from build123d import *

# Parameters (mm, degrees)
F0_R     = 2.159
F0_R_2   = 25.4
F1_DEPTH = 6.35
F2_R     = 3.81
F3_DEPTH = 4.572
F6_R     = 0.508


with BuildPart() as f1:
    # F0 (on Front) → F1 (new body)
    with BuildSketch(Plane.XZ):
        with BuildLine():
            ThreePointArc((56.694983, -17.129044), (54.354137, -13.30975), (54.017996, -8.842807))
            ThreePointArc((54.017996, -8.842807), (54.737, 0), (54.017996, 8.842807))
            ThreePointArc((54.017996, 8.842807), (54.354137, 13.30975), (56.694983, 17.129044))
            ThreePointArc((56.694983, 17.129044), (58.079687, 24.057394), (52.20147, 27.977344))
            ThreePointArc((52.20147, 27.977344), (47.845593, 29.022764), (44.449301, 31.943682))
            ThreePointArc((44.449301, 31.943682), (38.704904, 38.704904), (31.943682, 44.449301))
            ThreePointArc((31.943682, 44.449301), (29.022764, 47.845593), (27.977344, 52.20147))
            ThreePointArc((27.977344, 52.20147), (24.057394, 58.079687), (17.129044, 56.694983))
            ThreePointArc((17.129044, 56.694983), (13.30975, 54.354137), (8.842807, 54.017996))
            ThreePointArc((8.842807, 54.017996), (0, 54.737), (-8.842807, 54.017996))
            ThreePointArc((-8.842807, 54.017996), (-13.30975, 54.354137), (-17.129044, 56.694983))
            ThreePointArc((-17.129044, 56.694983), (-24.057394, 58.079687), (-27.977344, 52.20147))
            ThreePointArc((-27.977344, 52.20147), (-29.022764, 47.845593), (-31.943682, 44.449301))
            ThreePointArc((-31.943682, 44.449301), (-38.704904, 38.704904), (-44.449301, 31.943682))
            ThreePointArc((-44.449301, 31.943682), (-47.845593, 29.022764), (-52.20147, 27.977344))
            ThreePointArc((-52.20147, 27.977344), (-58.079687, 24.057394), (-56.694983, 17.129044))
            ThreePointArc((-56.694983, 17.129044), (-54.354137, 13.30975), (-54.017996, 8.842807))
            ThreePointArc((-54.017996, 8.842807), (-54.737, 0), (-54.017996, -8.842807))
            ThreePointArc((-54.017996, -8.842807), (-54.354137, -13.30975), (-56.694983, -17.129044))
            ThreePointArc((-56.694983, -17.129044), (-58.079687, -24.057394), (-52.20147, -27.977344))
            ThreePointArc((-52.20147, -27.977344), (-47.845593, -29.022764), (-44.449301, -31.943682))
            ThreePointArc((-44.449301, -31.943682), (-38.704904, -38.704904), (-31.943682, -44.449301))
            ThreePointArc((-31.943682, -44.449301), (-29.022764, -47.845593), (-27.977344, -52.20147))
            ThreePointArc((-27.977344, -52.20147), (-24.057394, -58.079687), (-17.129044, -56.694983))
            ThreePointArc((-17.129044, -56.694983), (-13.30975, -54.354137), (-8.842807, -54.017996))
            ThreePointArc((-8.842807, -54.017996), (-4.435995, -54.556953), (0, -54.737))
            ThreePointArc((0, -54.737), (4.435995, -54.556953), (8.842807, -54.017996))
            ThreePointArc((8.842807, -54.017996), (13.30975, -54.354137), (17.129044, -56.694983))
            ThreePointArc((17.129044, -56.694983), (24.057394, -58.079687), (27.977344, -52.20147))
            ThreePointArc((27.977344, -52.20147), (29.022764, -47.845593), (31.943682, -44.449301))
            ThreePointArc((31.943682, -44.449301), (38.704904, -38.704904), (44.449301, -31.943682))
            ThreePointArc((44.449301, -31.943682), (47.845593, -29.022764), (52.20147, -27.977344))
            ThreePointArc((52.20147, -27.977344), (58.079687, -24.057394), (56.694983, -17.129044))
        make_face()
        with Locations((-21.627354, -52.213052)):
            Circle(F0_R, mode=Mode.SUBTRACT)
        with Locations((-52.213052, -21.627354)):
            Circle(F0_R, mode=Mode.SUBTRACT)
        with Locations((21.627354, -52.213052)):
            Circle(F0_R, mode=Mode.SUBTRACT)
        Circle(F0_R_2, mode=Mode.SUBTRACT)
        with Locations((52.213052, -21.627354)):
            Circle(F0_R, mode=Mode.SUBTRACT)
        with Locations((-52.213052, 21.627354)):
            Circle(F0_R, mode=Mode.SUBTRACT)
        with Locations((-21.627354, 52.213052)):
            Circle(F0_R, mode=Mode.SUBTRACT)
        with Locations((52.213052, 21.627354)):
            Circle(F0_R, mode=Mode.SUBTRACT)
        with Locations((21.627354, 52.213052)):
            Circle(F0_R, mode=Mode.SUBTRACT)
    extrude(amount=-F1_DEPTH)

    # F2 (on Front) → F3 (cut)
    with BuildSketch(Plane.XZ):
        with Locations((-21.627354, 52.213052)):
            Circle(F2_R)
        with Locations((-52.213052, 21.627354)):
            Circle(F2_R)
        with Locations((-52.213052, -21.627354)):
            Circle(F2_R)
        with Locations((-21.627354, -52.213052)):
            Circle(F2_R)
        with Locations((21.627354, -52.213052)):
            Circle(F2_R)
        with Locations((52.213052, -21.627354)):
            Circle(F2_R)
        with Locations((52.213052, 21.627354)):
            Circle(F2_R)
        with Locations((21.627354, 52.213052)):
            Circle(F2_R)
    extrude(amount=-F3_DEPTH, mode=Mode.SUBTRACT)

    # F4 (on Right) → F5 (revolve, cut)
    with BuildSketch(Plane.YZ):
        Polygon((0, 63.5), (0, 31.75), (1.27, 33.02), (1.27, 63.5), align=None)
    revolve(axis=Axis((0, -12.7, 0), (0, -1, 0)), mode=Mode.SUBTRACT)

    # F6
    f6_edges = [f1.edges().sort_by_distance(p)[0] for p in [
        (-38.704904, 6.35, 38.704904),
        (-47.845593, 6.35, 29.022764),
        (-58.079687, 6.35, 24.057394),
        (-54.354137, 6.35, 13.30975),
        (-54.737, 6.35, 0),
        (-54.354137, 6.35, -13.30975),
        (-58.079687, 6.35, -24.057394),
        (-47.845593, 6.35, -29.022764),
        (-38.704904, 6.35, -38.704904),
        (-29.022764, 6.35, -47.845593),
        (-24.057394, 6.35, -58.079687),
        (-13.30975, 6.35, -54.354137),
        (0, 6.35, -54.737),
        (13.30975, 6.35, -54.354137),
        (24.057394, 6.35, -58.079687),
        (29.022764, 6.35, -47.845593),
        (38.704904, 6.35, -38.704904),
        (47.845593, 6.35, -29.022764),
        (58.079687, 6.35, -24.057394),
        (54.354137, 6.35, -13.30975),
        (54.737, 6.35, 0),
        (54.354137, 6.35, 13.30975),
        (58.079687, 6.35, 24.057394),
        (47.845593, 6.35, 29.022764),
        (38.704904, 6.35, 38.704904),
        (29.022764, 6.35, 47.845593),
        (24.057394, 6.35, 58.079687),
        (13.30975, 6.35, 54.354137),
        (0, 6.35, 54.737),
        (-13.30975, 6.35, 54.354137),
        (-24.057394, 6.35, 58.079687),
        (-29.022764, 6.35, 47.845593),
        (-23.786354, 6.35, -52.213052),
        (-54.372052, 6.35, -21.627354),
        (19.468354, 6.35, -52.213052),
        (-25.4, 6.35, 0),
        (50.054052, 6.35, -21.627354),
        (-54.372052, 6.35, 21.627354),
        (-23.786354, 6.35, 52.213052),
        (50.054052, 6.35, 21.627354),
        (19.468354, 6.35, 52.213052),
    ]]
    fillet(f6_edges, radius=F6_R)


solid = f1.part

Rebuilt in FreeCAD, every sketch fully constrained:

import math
import FreeCAD as App
import Part
import Sketcher

V = App.Vector
Q = App.Units.Quantity


def edges_at(feature, points):
    """Names of the edges that pass closest to the given points."""
    edges = feature.Shape.Edges
    near = lambda p: min(range(len(edges)), key=lambda i: edges[i].distToShape(Part.Vertex(*p))[0])
    return sorted({f"Edge{near(p) + 1}" for p in points})


def add_polygon(sketch, points):
    """Adds a closed chain of lines whose ends are joined by coincident constraints."""
    first, n = sketch.GeometryCount, len(points)
    for a, b in zip(points, points[1:] + points[:1]):
        sketch.addGeometry(Part.LineSegment(App.Vector(*a, 0), App.Vector(*b, 0)), False)
    for i in range(n):
        sketch.addConstraint(Sketcher.Constraint("Coincident", first + i, 2, first + (i + 1) % n, 1))

doc = App.newDocument("Part")
params = doc.addObject("Spreadsheet::Sheet", "Params")
for row, (alias, value) in enumerate([
    ("sketch1_diameter", "2 in"),
    ("sketch1_diameter2", "0.17 in"),
    ("sketch1_diameter3", "0.17 in"),
    ("sketch1_diameter4", "0.17 in"),
    ("sketch1_diameter5", "0.17 in"),
    ("pad1_length", "0.25 in"),
    ("sketch2_diameter", "0.3 in"),
    ("pocket1_length", "0.18 in"),
    ("sketch3_height", "1.2 in"),
    ("sketch3_width", "0.05 in"),
    ("groove_angle", "360 deg"),
    ("fillet_radius", "0.02 in"),
], start=1):
    params.set(f"A{row}", alias)
    params.set(f"B{row}", "=" + value)
    params.setAlias(f"B{row}", alias)

body = doc.addObject("PartDesign::Body", "Body")

# Sketch on XZ plane
sketch1 = doc.addObject("Sketcher::SketchObject", "Sketch")
body.addObject(sketch1)
sketch1.AttachmentSupport = (doc.XZ_Plane, [""])
sketch1.MapMode = "FlatFace"
sketch1.addGeometry([
    Part.ArcOfCircle(Part.Circle(V(63.417885, -10.381577, 0), V(0, 0, 1), 9.525005), math.radians(170.703092), math.radians(225.104488)),  # 0
    Part.ArcOfCircle(Part.Circle(V(0.000029, 0, 0), V(0, 0, 1), 54.736971), math.radians(-9.296928), math.radians(9.296928)),  # 1
    Part.ArcOfCircle(Part.Circle(V(63.417885, 10.381577, 0), V(0, 0, 1), 9.525005), math.radians(134.895512), math.radians(189.296908)),  # 2
    Part.ArcOfCircle(Part.Circle(V(52.213052, 21.627354, 0), V(0, 0, 1), 6.35), math.radians(-45.1045), math.radians(90.1045)),  # 3
    Part.ArcOfCircle(Part.Circle(V(52.184096, 37.502326, 0), V(0, 0, 1), 9.524998), math.radians(-144.296924), math.radians(-89.895493)),  # 4
    Part.ArcOfCircle(Part.Circle(V(0.000004, 0.000004, 0), V(0, 0, 1), 54.736994), math.radians(35.703075), math.radians(54.296925)),  # 5
    Part.ArcOfCircle(Part.Circle(V(37.502326, 52.184096, 0), V(0, 0, 1), 9.524998), math.radians(179.895493), math.radians(234.296924)),  # 6
    Part.ArcOfCircle(Part.Circle(V(21.627354, 52.213052, 0), V(0, 0, 1), 6.35), math.radians(-0.1045), math.radians(135.1045)),  # 7
    Part.ArcOfCircle(Part.Circle(V(10.381577, 63.417885, 0), V(0, 0, 1), 9.525005), math.radians(-99.296908), math.radians(-44.895512)),  # 8
    Part.ArcOfCircle(Part.Circle(V(0, 0.000029, 0), V(0, 0, 1), 54.736971), math.radians(80.703072), math.radians(99.296928)),  # 9
    Part.ArcOfCircle(Part.Circle(V(-10.381577, 63.417885, 0), V(0, 0, 1), 9.525005), math.radians(-135.104488), math.radians(-80.703092)),  # 10
    Part.ArcOfCircle(Part.Circle(V(-21.627354, 52.213052, 0), V(0, 0, 1), 6.35), math.radians(44.8955), math.radians(180.1045)),  # 11
    Part.ArcOfCircle(Part.Circle(V(-37.502326, 52.184096, 0), V(0, 0, 1), 9.524998), math.radians(-54.296924), math.radians(0.104507)),  # 12
    Part.ArcOfCircle(Part.Circle(V(-0.000004, 0.000004, 0), V(0, 0, 1), 54.736994), math.radians(125.703075), math.radians(144.296925)),  # 13
    Part.ArcOfCircle(Part.Circle(V(-52.184096, 37.502326, 0), V(0, 0, 1), 9.524998), math.radians(-90.104507), math.radians(-35.703076)),  # 14
    Part.ArcOfCircle(Part.Circle(V(-52.213052, 21.627354, 0), V(0, 0, 1), 6.35), math.radians(89.8955), math.radians(225.1045)),  # 15
    Part.ArcOfCircle(Part.Circle(V(-63.417885, 10.381577, 0), V(0, 0, 1), 9.525005), math.radians(-9.296908), math.radians(45.104488)),  # 16
    Part.ArcOfCircle(Part.Circle(V(-0.000029, 0, 0), V(0, 0, 1), 54.736971), math.radians(170.703072), math.radians(189.296928)),  # 17
    Part.ArcOfCircle(Part.Circle(V(-63.417885, -10.381577, 0), V(0, 0, 1), 9.525005), math.radians(-45.104488), math.radians(9.296908)),  # 18
    Part.ArcOfCircle(Part.Circle(V(-52.213052, -21.627354, 0), V(0, 0, 1), 6.35), math.radians(134.8955), math.radians(270.1045)),  # 19
    Part.ArcOfCircle(Part.Circle(V(-52.184096, -37.502326, 0), V(0, 0, 1), 9.524998), math.radians(35.703076), math.radians(90.104507)),  # 20
    Part.ArcOfCircle(Part.Circle(V(-0.000004, -0.000004, 0), V(0, 0, 1), 54.736994), math.radians(-144.296925), math.radians(-125.703075)),  # 21
    Part.ArcOfCircle(Part.Circle(V(-37.502326, -52.184096, 0), V(0, 0, 1), 9.524998), math.radians(-0.104507), math.radians(54.296924)),  # 22
    Part.ArcOfCircle(Part.Circle(V(-21.627354, -52.213052, 0), V(0, 0, 1), 6.35), math.radians(179.8955), math.radians(315.1045)),  # 23
    Part.ArcOfCircle(Part.Circle(V(-10.381577, -63.417885, 0), V(0, 0, 1), 9.525005), math.radians(80.703092), math.radians(135.104488)),  # 24
    Part.ArcOfCircle(Part.Circle(V(-0.000003, -0.000067, 0), V(0, 0, 1), 54.736933), math.radians(-99.296931), math.radians(-89.999997)),  # 25
    Part.ArcOfCircle(Part.Circle(V(0.000003, -0.000067, 0), V(0, 0, 1), 54.736933), math.radians(-90.000003), math.radians(-80.703069)),  # 26
    Part.ArcOfCircle(Part.Circle(V(10.381577, -63.417885, 0), V(0, 0, 1), 9.525005), math.radians(44.895512), math.radians(99.296908)),  # 27
    Part.ArcOfCircle(Part.Circle(V(21.627354, -52.213052, 0), V(0, 0, 1), 6.35), math.radians(-135.1045), math.radians(0.1045)),  # 28
    Part.ArcOfCircle(Part.Circle(V(37.502326, -52.184096, 0), V(0, 0, 1), 9.524998), math.radians(125.703076), math.radians(180.104507)),  # 29
    Part.ArcOfCircle(Part.Circle(V(0.000004, -0.000004, 0), V(0, 0, 1), 54.736994), math.radians(-54.296925), math.radians(-35.703075)),  # 30
    Part.ArcOfCircle(Part.Circle(V(52.184096, -37.502326, 0), V(0, 0, 1), 9.524998), math.radians(89.895493), math.radians(144.296924)),  # 31
    Part.ArcOfCircle(Part.Circle(V(52.213052, -21.627354, 0), V(0, 0, 1), 6.35), math.radians(-90.1045), math.radians(45.1045)),  # 32
    Part.Circle(V(-21.627354, -52.213052, 0), V(0, 0, 1), 2.159),  # 33
    Part.Circle(V(-52.213052, -21.627354, 0), V(0, 0, 1), 2.159),  # 34
    Part.Circle(V(21.627354, -52.213052, 0), V(0, 0, 1), 2.159),  # 35
    Part.Circle(V(52.213052, -21.627354, 0), V(0, 0, 1), 2.159),  # 36
    Part.Circle(V(-52.213052, 21.627354, 0), V(0, 0, 1), 2.159),  # 37
    Part.Circle(V(-21.627354, 52.213052, 0), V(0, 0, 1), 2.159),  # 38
    Part.Circle(V(0, 0, 0), V(0, 0, 1), 25.4),  # 39
    Part.Circle(V(52.213052, 21.627354, 0), V(0, 0, 1), 2.159),  # 40
    Part.Circle(V(21.627354, 52.213052, 0), V(0, 0, 1), 2.159),  # 41
], False)
sketch1.addConstraint([
    Sketcher.Constraint("Coincident", 0, 1, 1, 1),
    Sketcher.Constraint("Coincident", 1, 2, 2, 2),
    Sketcher.Constraint("Coincident", 2, 1, 3, 1),
    Sketcher.Constraint("Coincident", 3, 2, 4, 2),
    Sketcher.Constraint("Coincident", 4, 1, 5, 1),
    Sketcher.Constraint("Coincident", 5, 2, 6, 2),
    Sketcher.Constraint("Coincident", 6, 1, 7, 1),
    Sketcher.Constraint("Coincident", 7, 2, 8, 2),
    Sketcher.Constraint("Coincident", 8, 1, 9, 1),
    Sketcher.Constraint("Coincident", 9, 2, 10, 2),
    Sketcher.Constraint("Coincident", 10, 1, 11, 1),
    Sketcher.Constraint("Coincident", 11, 2, 12, 2),
    Sketcher.Constraint("Coincident", 12, 1, 13, 1),
    Sketcher.Constraint("Coincident", 13, 2, 14, 2),
    Sketcher.Constraint("Coincident", 14, 1, 15, 1),
    Sketcher.Constraint("Coincident", 15, 2, 16, 2),
    Sketcher.Constraint("Coincident", 16, 1, 17, 1),
    Sketcher.Constraint("Coincident", 17, 2, 18, 2),
    Sketcher.Constraint("Coincident", 18, 1, 19, 1),
    Sketcher.Constraint("Coincident", 19, 2, 20, 2),
    Sketcher.Constraint("Coincident", 20, 1, 21, 1),
    Sketcher.Constraint("Coincident", 21, 2, 22, 2),
    Sketcher.Constraint("Coincident", 22, 1, 23, 1),
    Sketcher.Constraint("Coincident", 23, 2, 24, 2),
    Sketcher.Constraint("Coincident", 24, 1, 25, 1),
    Sketcher.Constraint("Coincident", 25, 2, 26, 1),
    Sketcher.Constraint("Coincident", 26, 2, 27, 2),
    Sketcher.Constraint("Coincident", 27, 1, 28, 1),
    Sketcher.Constraint("Coincident", 28, 2, 29, 2),
    Sketcher.Constraint("Coincident", 29, 1, 30, 1),
    Sketcher.Constraint("Coincident", 30, 2, 31, 2),
    Sketcher.Constraint("Coincident", 31, 1, 32, 1),
    Sketcher.Constraint("Coincident", 32, 2, 0, 2),
    Sketcher.Constraint("Coincident", 5, 3, -1, 1),
    Sketcher.Constraint("Coincident", 13, 3, -1, 1),
    Sketcher.Constraint("Coincident", 21, 3, -1, 1),
    Sketcher.Constraint("Coincident", 30, 3, -1, 1),
    Sketcher.Constraint("Coincident", 39, 3, -1, 1),
    Sketcher.Constraint("Coincident", 26, 3, 25, 3),
    Sketcher.Constraint("Coincident", 33, 3, 23, 3),
    Sketcher.Constraint("Coincident", 34, 3, 19, 3),
    Sketcher.Constraint("Coincident", 35, 3, 28, 3),
    Sketcher.Constraint("Coincident", 36, 3, 32, 3),
    Sketcher.Constraint("Coincident", 37, 3, 15, 3),
    Sketcher.Constraint("Coincident", 38, 3, 11, 3),
    Sketcher.Constraint("Coincident", 40, 3, 3, 3),
    Sketcher.Constraint("Coincident", 41, 3, 7, 3),
    Sketcher.Constraint("PointOnObject", 1, 3, -1),
    Sketcher.Constraint("PointOnObject", 9, 3, -2),
    Sketcher.Constraint("PointOnObject", 17, 3, -1),
    Sketcher.Constraint("PointOnObject", 25, 2, -2),
    Sketcher.Constraint("Diameter", 39, Q("2 in")),
    Sketcher.Constraint("Diameter", 33, Q("0.17 in")),
    Sketcher.Constraint("Diameter", 34, Q("0.17 in")),
    Sketcher.Constraint("Diameter", 35, Q("0.17 in")),
    Sketcher.Constraint("Diameter", 36, Q("0.17 in")),
    Sketcher.Constraint("Diameter", 37, Q("0.17 in")),
    Sketcher.Constraint("Diameter", 38, Q("0.17 in")),
    Sketcher.Constraint("Diameter", 40, Q("0.17 in")),
    Sketcher.Constraint("Diameter", 41, Q("0.17 in")),
    Sketcher.Constraint("Radius", 3, Q("0.25 in")),
    Sketcher.Constraint("Radius", 7, Q("0.25 in")),
    Sketcher.Constraint("Radius", 11, Q("0.25 in")),
    Sketcher.Constraint("Radius", 15, Q("0.25 in")),
    Sketcher.Constraint("Radius", 19, Q("0.25 in")),
    Sketcher.Constraint("Radius", 23, Q("0.25 in")),
    Sketcher.Constraint("Radius", 28, Q("0.25 in")),
    Sketcher.Constraint("Radius", 32, Q("0.25 in")),
    Sketcher.Constraint("Radius", 0, Q("0.3750002 in")),
    Sketcher.Constraint("Radius", 2, Q("0.3750002 in")),
    Sketcher.Constraint("Radius", 4, Q("0.3749999 in")),
    Sketcher.Constraint("Radius", 6, Q("0.3749999 in")),
    Sketcher.Constraint("Radius", 8, Q("0.3750002 in")),
    Sketcher.Constraint("Radius", 10, Q("0.3750002 in")),
    Sketcher.Constraint("Radius", 12, Q("0.3749999 in")),
    Sketcher.Constraint("Radius", 14, Q("0.3749999 in")),
    Sketcher.Constraint("Radius", 16, Q("0.3750002 in")),
    Sketcher.Constraint("Radius", 18, Q("0.3750002 in")),
    Sketcher.Constraint("Radius", 20, Q("0.3749999 in")),
    Sketcher.Constraint("Radius", 22, Q("0.3749999 in")),
    Sketcher.Constraint("Radius", 24, Q("0.3750002 in")),
    Sketcher.Constraint("Radius", 27, Q("0.3750002 in")),
    Sketcher.Constraint("Radius", 29, Q("0.3749999 in")),
    Sketcher.Constraint("Radius", 31, Q("0.3749999 in")),
    Sketcher.Constraint("DistanceY", 25, 2, -1, 1, Q("2.155 in")),
    Sketcher.Constraint("Radius", 1, Q("54.736971 mm")),
    Sketcher.Constraint("Radius", 9, Q("54.736971 mm")),
    Sketcher.Constraint("Radius", 17, Q("54.736971 mm")),
    Sketcher.Constraint("Radius", 5, Q("54.736994 mm")),
    Sketcher.Constraint("Radius", 13, Q("54.736994 mm")),
    Sketcher.Constraint("Radius", 21, Q("54.736994 mm")),
    Sketcher.Constraint("Radius", 25, Q("54.736933 mm")),
    Sketcher.Constraint("Radius", 30, Q("54.736994 mm")),
    Sketcher.Constraint("DistanceX", -1, 1, 4, 1, Q("44.449301 mm")),
    Sketcher.Constraint("DistanceY", -1, 1, 5, 2, Q("44.449301 mm")),
    Sketcher.Constraint("DistanceY", -1, 1, 12, 1, Q("44.449301 mm")),
    Sketcher.Constraint("DistanceX", 13, 2, -1, 1, Q("44.449301 mm")),
    Sketcher.Constraint("DistanceX", 20, 1, -1, 1, Q("44.449301 mm")),
    Sketcher.Constraint("DistanceY", 21, 2, -1, 1, Q("44.449301 mm")),
    Sketcher.Constraint("DistanceY", 29, 1, -1, 1, Q("44.449301 mm")),
    Sketcher.Constraint("DistanceX", -1, 1, 30, 2, Q("44.449301 mm")),
    Sketcher.Constraint("DistanceX", -1, 1, 3, 3, Q("52.213052 mm")),
    Sketcher.Constraint("DistanceY", -1, 1, 7, 3, Q("52.213052 mm")),
    Sketcher.Constraint("DistanceY", -1, 1, 11, 3, Q("52.213052 mm")),
    Sketcher.Constraint("DistanceX", 15, 3, -1, 1, Q("52.213052 mm")),
    Sketcher.Constraint("DistanceX", 19, 3, -1, 1, Q("52.213052 mm")),
    Sketcher.Constraint("DistanceY", 23, 3, -1, 1, Q("52.213052 mm")),
    Sketcher.Constraint("DistanceY", 28, 3, -1, 1, Q("52.213052 mm")),
    Sketcher.Constraint("DistanceX", -1, 1, 32, 3, Q("52.213052 mm")),
    Sketcher.Constraint("DistanceX", -1, 1, 3, 2, Q("52.20147 mm")),
    Sketcher.Constraint("DistanceY", -1, 1, 6, 1, Q("52.20147 mm")),
    Sketcher.Constraint("DistanceY", -1, 1, 11, 2, Q("52.20147 mm")),
    Sketcher.Constraint("DistanceX", 14, 1, -1, 1, Q("52.20147 mm")),
    Sketcher.Constraint("DistanceX", 19, 2, -1, 1, Q("52.20147 mm")),
    Sketcher.Constraint("DistanceY", 22, 1, -1, 1, Q("52.20147 mm")),
    Sketcher.Constraint("DistanceY", 28, 2, -1, 1, Q("52.20147 mm")),
    Sketcher.Constraint("DistanceX", -1, 1, 31, 1, Q("52.20147 mm")),
    Sketcher.Constraint("DistanceX", -1, 1, 0, 3, Q("63.417885 mm")),
    Sketcher.Constraint("DistanceY", 0, 3, -1, 1, Q("10.381577 mm")),
    Sketcher.Constraint("DistanceX", -1, 1, 2, 3, Q("63.417885 mm")),
    Sketcher.Constraint("DistanceX", -1, 1, 6, 3, Q("37.502326 mm")),
    Sketcher.Constraint("DistanceX", -1, 1, 8, 3, Q("10.381577 mm")),
    Sketcher.Constraint("DistanceX", 10, 3, -1, 1, Q("10.381577 mm")),
    Sketcher.Constraint("DistanceX", 14, 3, -1, 1, Q("52.184096 mm")),
    Sketcher.Constraint("DistanceX", 16, 3, -1, 1, Q("63.417885 mm")),
    Sketcher.Constraint("DistanceX", 18, 3, -1, 1, Q("63.417885 mm")),
    Sketcher.Constraint("DistanceX", 22, 3, -1, 1, Q("37.502326 mm")),
    Sketcher.Constraint("DistanceX", 24, 3, -1, 1, Q("10.381577 mm")),
    Sketcher.Constraint("DistanceX", -1, 1, 27, 3, Q("10.381577 mm")),
    Sketcher.Constraint("DistanceX", -1, 1, 0, 1, Q("54.017996 mm")),
    Sketcher.Constraint("DistanceX", -1, 1, 1, 2, Q("54.017996 mm")),
    Sketcher.Constraint("DistanceX", -1, 1, 2, 1, Q("56.694983 mm")),
    Sketcher.Constraint("DistanceX", -1, 1, 7, 2, Q("17.129044 mm")),
    Sketcher.Constraint("DistanceX", -1, 1, 8, 1, Q("8.842807 mm")),
    Sketcher.Constraint("DistanceX", 9, 2, -1, 1, Q("8.842807 mm")),
    Sketcher.Constraint("DistanceX", 10, 1, -1, 1, Q("17.129044 mm")),
    Sketcher.Constraint("DistanceX", 15, 2, -1, 1, Q("56.694983 mm")),
    Sketcher.Constraint("DistanceX", 16, 1, -1, 1, Q("54.017996 mm")),
    Sketcher.Constraint("DistanceX", 17, 2, -1, 1, Q("54.017996 mm")),
    Sketcher.Constraint("DistanceX", 18, 1, -1, 1, Q("56.694983 mm")),
    Sketcher.Constraint("DistanceX", 23, 2, -1, 1, Q("17.129044 mm")),
    Sketcher.Constraint("DistanceX", 24, 1, -1, 1, Q("8.842807 mm")),
    Sketcher.Constraint("DistanceX", -1, 1, 26, 2, Q("8.842807 mm")),
    Sketcher.Constraint("DistanceX", -1, 1, 27, 1, Q("17.129044 mm")),
    Sketcher.Constraint("DistanceX", -1, 1, 32, 2, Q("56.694983 mm")),
])
sketch1.setExpression("Constraints[51]", "Params.sketch1_diameter")
sketch1.setExpression("Constraints[52]", "Params.sketch1_diameter2")
sketch1.setExpression("Constraints[53]", "Params.sketch1_diameter3")
sketch1.setExpression("Constraints[54]", "Params.sketch1_diameter4")
sketch1.setExpression("Constraints[55]", "Params.sketch1_diameter5")
pad1 = doc.addObject("PartDesign::Pad", "Pad")
body.addObject(pad1)
pad1.Profile = sketch1
pad1.setExpression("Length", "Params.pad1_length")
pad1.Reversed = True

# Sketch on XZ plane
sketch2 = doc.addObject("Sketcher::SketchObject", "Sketch001")
body.addObject(sketch2)
sketch2.AttachmentSupport = (doc.XZ_Plane, [""])
sketch2.MapMode = "FlatFace"
sketch2.addGeometry([
    Part.Circle(V(-21.627354, 52.213052, 0), V(0, 0, 1), 3.81),  # 0
    Part.Circle(V(-52.213052, 21.627354, 0), V(0, 0, 1), 3.81),  # 1
    Part.Circle(V(-52.213052, -21.627354, 0), V(0, 0, 1), 3.81),  # 2
    Part.Circle(V(-21.627354, -52.213052, 0), V(0, 0, 1), 3.81),  # 3
    Part.Circle(V(21.627354, -52.213052, 0), V(0, 0, 1), 3.81),  # 4
    Part.Circle(V(52.213052, -21.627354, 0), V(0, 0, 1), 3.81),  # 5
    Part.Circle(V(52.213052, 21.627354, 0), V(0, 0, 1), 3.81),  # 6
    Part.Circle(V(21.627354, 52.213052, 0), V(0, 0, 1), 3.81),  # 7
], False)
sketch2.addConstraint([
    Sketcher.Constraint("Equal", 0, 1),
    Sketcher.Constraint("Equal", 1, 2),
    Sketcher.Constraint("Equal", 2, 3),
    Sketcher.Constraint("Equal", 3, 4),
    Sketcher.Constraint("Equal", 4, 5),
    Sketcher.Constraint("Equal", 5, 6),
    Sketcher.Constraint("Equal", 6, 7),
    Sketcher.Constraint("Symmetric", 0, 3, 4, 3, -1, 1),
    Sketcher.Constraint("Symmetric", 1, 3, 5, 3, -1, 1),
    Sketcher.Constraint("Symmetric", 2, 3, 6, 3, -1, 1),
    Sketcher.Constraint("Symmetric", 3, 3, 7, 3, -1, 1),
    Sketcher.Constraint("Symmetric", 3, 3, 4, 3, -2),
    Sketcher.Constraint("Symmetric", 2, 3, 5, 3, -2),
    Sketcher.Constraint("Diameter", 0, Q("0.3 in")),
    Sketcher.Constraint("DistanceY", -1, 1, 0, 3, Q("52.213052 mm")),
    Sketcher.Constraint("DistanceX", 1, 3, -1, 1, Q("52.213052 mm")),
    Sketcher.Constraint("DistanceX", 0, 3, -1, 1, Q("21.627354 mm")),
    Sketcher.Constraint("DistanceY", -1, 1, 1, 3, Q("21.627354 mm")),
])
sketch2.setExpression("Constraints[13]", "Params.sketch2_diameter")
pocket1 = doc.addObject("PartDesign::Pocket", "Pocket")
body.addObject(pocket1)
pocket1.Profile = sketch2
pocket1.setExpression("Length", "Params.pocket1_length")

# Sketch on YZ plane
sketch3 = doc.addObject("Sketcher::SketchObject", "Sketch002")
body.addObject(sketch3)
sketch3.AttachmentSupport = (doc.YZ_Plane, [""])
sketch3.MapMode = "FlatFace"
add_polygon(sketch3, [(0, 63.5), (0, 31.75), (1.27, 33.02), (1.27, 63.5)])  # lines 0-3
sketch3.addConstraint([
    Sketcher.Constraint("Vertical", 0),
    Sketcher.Constraint("Vertical", 2),
    Sketcher.Constraint("Horizontal", 3),
    Sketcher.Constraint("PointOnObject", 0, 2, -2),
    Sketcher.Constraint("DistanceY", 2, 1, 2, 2, Q("1.2 in")),
    Sketcher.Constraint("Angle", 1, Q("45 deg")),
    Sketcher.Constraint("DistanceX", 3, 2, 3, 1, Q("0.05 in")),
    Sketcher.Constraint("DistanceY", -1, 1, 1, 2, Q("1.3 in")),
])
sketch3.setExpression("Constraints[8]", "Params.sketch3_height")
sketch3.setExpression("Constraints[10]", "Params.sketch3_width")
groove = doc.addObject("PartDesign::Groove", "Groove")
body.addObject(groove)
groove.Profile = sketch3
groove.ReferenceAxis = (sketch3, ["H_Axis"])
groove.setExpression("Angle", "Params.groove_angle")
doc.recompute()

fillet = doc.addObject("PartDesign::Fillet", "Fillet")
body.addObject(fillet)
fillet.Base = (groove, edges_at(groove, [
    (-38.705, 6.35, 38.705),
    (-47.846, 6.35, 29.023),
    (-58.08, 6.35, 24.057),
    (-54.354, 6.35, 13.31),
    (-54.737, 6.35, 0),
    (-54.354, 6.35, -13.31),
    (-58.08, 6.35, -24.057),
    (-47.846, 6.35, -29.023),
    (-38.705, 6.35, -38.705),
    (-29.023, 6.35, -47.846),
    (-24.057, 6.35, -58.08),
    (-13.31, 6.35, -54.354),
    (4.436, 6.35, -54.557),
    (13.31, 6.35, -54.354),
    (24.057, 6.35, -58.08),
    (29.023, 6.35, -47.846),
    (38.705, 6.35, -38.705),
    (47.846, 6.35, -29.023),
    (58.08, 6.35, -24.057),
    (54.354, 6.35, -13.31),
    (54.737, 6.35, 0),
    (54.354, 6.35, 13.31),
    (58.08, 6.35, 24.057),
    (47.846, 6.35, 29.023),
    (38.705, 6.35, 38.705),
    (29.023, 6.35, 47.846),
    (24.057, 6.35, 58.08),
    (13.31, 6.35, 54.354),
    (0, 6.35, 54.737),
    (-13.31, 6.35, 54.354),
    (-24.057, 6.35, 58.08),
    (-29.023, 6.35, 47.846),
    (-23.786, 6.35, -52.213),
    (-54.372, 6.35, -21.627),
    (19.468, 6.35, -52.213),
    (-25.4, 6.35, 0),
    (50.054, 6.35, -21.627),
    (-54.372, 6.35, 21.627),
    (-23.786, 6.35, 52.213),
    (50.054, 6.35, 21.627),
    (19.468, 6.35, 52.213),
]))
fillet.setExpression("Radius", "Params.fillet_radius")

doc.recompute()
